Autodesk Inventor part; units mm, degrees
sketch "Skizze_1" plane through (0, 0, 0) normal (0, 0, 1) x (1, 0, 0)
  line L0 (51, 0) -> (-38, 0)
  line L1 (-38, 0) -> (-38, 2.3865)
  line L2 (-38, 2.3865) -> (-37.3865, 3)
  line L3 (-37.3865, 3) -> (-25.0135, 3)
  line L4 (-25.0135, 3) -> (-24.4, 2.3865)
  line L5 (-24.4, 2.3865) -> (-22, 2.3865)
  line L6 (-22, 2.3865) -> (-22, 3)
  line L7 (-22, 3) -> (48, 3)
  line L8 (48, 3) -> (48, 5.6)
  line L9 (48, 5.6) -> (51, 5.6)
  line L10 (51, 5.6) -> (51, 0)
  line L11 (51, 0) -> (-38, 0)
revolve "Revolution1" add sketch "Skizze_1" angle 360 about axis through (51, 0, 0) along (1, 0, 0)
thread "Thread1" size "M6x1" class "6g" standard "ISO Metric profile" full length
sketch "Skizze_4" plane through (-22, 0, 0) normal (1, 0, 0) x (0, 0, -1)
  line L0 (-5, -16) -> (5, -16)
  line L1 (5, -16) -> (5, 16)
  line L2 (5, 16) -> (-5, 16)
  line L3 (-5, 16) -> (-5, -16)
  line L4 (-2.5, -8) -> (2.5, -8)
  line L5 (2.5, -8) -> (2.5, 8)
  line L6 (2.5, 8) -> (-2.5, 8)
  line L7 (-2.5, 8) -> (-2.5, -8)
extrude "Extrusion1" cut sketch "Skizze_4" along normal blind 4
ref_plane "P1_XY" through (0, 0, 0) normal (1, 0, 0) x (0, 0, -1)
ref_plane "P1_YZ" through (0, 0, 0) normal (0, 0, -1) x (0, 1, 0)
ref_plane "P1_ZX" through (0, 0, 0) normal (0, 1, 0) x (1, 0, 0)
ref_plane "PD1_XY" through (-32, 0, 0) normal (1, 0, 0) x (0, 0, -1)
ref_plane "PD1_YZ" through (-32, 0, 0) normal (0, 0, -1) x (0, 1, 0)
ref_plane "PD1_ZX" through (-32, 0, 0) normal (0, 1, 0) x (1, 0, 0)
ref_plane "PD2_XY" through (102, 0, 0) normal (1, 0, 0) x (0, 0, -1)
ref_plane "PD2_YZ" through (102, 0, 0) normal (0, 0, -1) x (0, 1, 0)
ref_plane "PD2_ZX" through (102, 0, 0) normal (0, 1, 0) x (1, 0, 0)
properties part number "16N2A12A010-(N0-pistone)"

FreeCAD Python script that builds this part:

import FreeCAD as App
import Part
import Sketcher
Q = App.Units.Quantity


def add_polygon(sketch, points):
    """Adds a closed chain of lines whose ends are joined by coincident constraints."""
    first, n = sketch.GeometryCount, len(points)
    for a, b in zip(points, points[1:] + points[:1]):
        sketch.addGeometry(Part.LineSegment(App.Vector(*a, 0), App.Vector(*b, 0)), False)
    for i in range(n):
        sketch.addConstraint(Sketcher.Constraint("Coincident", first + i, 2, first + (i + 1) % n, 1))

doc = App.newDocument("Part")
body = doc.addObject("PartDesign::Body", "Body")

sketch1 = body.newObject("Sketcher::SketchObject", "Sketch")
sketch1.AttachmentSupport = (doc.getObject("XY_Plane"), [""])
sketch1.MapMode = "FlatFace"
add_polygon(sketch1, [(-38, 0), (51, 0), (51, 5.6), (48, 5.6), (48, 3), (-22, 3), (-22, 2.3865), (-24.4, 2.3865), (-25.0135, 3), (-37.3865, 3), (-38, 2.3865)])
sketch1.addConstraint([
    Sketcher.Constraint("Horizontal", 0),
    Sketcher.Constraint("Vertical", 1),
    Sketcher.Constraint("Horizontal", 2),
    Sketcher.Constraint("Vertical", 3),
    Sketcher.Constraint("Horizontal", 4),
    Sketcher.Constraint("Vertical", 5),
    Sketcher.Constraint("Horizontal", 6),
    Sketcher.Constraint("Horizontal", 8),
    Sketcher.Constraint("Vertical", 10),
    Sketcher.Constraint("PointOnObject", 0, 2, -1),
    Sketcher.Constraint("Perpendicular", 7, 9),
    Sketcher.Constraint("Horizontal", 4, 2, 7, 2),
    Sketcher.Constraint("Horizontal", 6, 2, 9, 2),
    Sketcher.Constraint("Equal", 7, 9),
    Sketcher.Constraint("DistanceX", 0, 1, 0, 2, Q("89 mm")),
    Sketcher.Constraint("DistanceX", 2, 2, 2, 1, Q("3 mm")),
    Sketcher.Constraint("DistanceX", 4, 2, 4, 1, Q("70 mm")),
    Sketcher.Constraint("DistanceX", 6, 2, 6, 1, Q("2.4 mm")),
    Sketcher.Constraint("DistanceY", 1, 1, 1, 2, Q("5.6 mm")),
    Sketcher.Constraint("DistanceY", 3, 2, 3, 1, Q("2.6 mm")),
    Sketcher.Constraint("DistanceX", -1, 1, 0, 2, Q("51 mm")),
    Sketcher.Constraint("DistanceX", 8, 2, 8, 1, Q("12.373 mm")),
])
revolution = body.newObject("PartDesign::Revolution", "Revolution")
revolution.Profile = sketch1
revolution.ReferenceAxis = (sketch1, ["H_Axis"])
revolution.Angle = 360

sketch2 = body.newObject("Sketcher::SketchObject", "Sketch001")
sketch2.AttachmentSupport = (doc.getObject("YZ_Plane"), [""])
sketch2.MapMode = "FlatFace"
sketch2.AttachmentOffset = App.Placement(App.Vector(0, 0, -22), App.Rotation())
add_polygon(sketch2, [(16, 5), (-16, 5), (-16, -5), (16, -5)])
add_polygon(sketch2, [(-8, -2.5), (-8, 2.5), (8, 2.5), (8, -2.5)])
sketch2.addConstraint([
    Sketcher.Constraint("Horizontal", 0),
    Sketcher.Constraint("Vertical", 1),
    Sketcher.Constraint("Horizontal", 2),
    Sketcher.Constraint("Vertical", 3),
    Sketcher.Constraint("Vertical", 4),
    Sketcher.Constraint("Horizontal", 5),
    Sketcher.Constraint("Vertical", 6),
    Sketcher.Constraint("Horizontal", 7),
    Sketcher.Constraint("Symmetric", 0, 2, 2, 2, -1, 1),
    Sketcher.Constraint("Symmetric", 4, 2, 6, 2, -1, 1),
    Sketcher.Constraint("DistanceX", 0, 2, 0, 1, Q("32 mm")),
    Sketcher.Constraint("DistanceX", 5, 1, 5, 2, Q("16 mm")),
    Sketcher.Constraint("DistanceY", 1, 2, 1, 1, Q("10 mm")),
    Sketcher.Constraint("DistanceY", 4, 1, 4, 2, Q("5 mm")),
])
pocket1 = body.newObject("PartDesign::Pocket", "Pocket")
pocket1.Profile = sketch2
pocket1.Length = 4
pocket1.Reversed = True

doc.recompute()
